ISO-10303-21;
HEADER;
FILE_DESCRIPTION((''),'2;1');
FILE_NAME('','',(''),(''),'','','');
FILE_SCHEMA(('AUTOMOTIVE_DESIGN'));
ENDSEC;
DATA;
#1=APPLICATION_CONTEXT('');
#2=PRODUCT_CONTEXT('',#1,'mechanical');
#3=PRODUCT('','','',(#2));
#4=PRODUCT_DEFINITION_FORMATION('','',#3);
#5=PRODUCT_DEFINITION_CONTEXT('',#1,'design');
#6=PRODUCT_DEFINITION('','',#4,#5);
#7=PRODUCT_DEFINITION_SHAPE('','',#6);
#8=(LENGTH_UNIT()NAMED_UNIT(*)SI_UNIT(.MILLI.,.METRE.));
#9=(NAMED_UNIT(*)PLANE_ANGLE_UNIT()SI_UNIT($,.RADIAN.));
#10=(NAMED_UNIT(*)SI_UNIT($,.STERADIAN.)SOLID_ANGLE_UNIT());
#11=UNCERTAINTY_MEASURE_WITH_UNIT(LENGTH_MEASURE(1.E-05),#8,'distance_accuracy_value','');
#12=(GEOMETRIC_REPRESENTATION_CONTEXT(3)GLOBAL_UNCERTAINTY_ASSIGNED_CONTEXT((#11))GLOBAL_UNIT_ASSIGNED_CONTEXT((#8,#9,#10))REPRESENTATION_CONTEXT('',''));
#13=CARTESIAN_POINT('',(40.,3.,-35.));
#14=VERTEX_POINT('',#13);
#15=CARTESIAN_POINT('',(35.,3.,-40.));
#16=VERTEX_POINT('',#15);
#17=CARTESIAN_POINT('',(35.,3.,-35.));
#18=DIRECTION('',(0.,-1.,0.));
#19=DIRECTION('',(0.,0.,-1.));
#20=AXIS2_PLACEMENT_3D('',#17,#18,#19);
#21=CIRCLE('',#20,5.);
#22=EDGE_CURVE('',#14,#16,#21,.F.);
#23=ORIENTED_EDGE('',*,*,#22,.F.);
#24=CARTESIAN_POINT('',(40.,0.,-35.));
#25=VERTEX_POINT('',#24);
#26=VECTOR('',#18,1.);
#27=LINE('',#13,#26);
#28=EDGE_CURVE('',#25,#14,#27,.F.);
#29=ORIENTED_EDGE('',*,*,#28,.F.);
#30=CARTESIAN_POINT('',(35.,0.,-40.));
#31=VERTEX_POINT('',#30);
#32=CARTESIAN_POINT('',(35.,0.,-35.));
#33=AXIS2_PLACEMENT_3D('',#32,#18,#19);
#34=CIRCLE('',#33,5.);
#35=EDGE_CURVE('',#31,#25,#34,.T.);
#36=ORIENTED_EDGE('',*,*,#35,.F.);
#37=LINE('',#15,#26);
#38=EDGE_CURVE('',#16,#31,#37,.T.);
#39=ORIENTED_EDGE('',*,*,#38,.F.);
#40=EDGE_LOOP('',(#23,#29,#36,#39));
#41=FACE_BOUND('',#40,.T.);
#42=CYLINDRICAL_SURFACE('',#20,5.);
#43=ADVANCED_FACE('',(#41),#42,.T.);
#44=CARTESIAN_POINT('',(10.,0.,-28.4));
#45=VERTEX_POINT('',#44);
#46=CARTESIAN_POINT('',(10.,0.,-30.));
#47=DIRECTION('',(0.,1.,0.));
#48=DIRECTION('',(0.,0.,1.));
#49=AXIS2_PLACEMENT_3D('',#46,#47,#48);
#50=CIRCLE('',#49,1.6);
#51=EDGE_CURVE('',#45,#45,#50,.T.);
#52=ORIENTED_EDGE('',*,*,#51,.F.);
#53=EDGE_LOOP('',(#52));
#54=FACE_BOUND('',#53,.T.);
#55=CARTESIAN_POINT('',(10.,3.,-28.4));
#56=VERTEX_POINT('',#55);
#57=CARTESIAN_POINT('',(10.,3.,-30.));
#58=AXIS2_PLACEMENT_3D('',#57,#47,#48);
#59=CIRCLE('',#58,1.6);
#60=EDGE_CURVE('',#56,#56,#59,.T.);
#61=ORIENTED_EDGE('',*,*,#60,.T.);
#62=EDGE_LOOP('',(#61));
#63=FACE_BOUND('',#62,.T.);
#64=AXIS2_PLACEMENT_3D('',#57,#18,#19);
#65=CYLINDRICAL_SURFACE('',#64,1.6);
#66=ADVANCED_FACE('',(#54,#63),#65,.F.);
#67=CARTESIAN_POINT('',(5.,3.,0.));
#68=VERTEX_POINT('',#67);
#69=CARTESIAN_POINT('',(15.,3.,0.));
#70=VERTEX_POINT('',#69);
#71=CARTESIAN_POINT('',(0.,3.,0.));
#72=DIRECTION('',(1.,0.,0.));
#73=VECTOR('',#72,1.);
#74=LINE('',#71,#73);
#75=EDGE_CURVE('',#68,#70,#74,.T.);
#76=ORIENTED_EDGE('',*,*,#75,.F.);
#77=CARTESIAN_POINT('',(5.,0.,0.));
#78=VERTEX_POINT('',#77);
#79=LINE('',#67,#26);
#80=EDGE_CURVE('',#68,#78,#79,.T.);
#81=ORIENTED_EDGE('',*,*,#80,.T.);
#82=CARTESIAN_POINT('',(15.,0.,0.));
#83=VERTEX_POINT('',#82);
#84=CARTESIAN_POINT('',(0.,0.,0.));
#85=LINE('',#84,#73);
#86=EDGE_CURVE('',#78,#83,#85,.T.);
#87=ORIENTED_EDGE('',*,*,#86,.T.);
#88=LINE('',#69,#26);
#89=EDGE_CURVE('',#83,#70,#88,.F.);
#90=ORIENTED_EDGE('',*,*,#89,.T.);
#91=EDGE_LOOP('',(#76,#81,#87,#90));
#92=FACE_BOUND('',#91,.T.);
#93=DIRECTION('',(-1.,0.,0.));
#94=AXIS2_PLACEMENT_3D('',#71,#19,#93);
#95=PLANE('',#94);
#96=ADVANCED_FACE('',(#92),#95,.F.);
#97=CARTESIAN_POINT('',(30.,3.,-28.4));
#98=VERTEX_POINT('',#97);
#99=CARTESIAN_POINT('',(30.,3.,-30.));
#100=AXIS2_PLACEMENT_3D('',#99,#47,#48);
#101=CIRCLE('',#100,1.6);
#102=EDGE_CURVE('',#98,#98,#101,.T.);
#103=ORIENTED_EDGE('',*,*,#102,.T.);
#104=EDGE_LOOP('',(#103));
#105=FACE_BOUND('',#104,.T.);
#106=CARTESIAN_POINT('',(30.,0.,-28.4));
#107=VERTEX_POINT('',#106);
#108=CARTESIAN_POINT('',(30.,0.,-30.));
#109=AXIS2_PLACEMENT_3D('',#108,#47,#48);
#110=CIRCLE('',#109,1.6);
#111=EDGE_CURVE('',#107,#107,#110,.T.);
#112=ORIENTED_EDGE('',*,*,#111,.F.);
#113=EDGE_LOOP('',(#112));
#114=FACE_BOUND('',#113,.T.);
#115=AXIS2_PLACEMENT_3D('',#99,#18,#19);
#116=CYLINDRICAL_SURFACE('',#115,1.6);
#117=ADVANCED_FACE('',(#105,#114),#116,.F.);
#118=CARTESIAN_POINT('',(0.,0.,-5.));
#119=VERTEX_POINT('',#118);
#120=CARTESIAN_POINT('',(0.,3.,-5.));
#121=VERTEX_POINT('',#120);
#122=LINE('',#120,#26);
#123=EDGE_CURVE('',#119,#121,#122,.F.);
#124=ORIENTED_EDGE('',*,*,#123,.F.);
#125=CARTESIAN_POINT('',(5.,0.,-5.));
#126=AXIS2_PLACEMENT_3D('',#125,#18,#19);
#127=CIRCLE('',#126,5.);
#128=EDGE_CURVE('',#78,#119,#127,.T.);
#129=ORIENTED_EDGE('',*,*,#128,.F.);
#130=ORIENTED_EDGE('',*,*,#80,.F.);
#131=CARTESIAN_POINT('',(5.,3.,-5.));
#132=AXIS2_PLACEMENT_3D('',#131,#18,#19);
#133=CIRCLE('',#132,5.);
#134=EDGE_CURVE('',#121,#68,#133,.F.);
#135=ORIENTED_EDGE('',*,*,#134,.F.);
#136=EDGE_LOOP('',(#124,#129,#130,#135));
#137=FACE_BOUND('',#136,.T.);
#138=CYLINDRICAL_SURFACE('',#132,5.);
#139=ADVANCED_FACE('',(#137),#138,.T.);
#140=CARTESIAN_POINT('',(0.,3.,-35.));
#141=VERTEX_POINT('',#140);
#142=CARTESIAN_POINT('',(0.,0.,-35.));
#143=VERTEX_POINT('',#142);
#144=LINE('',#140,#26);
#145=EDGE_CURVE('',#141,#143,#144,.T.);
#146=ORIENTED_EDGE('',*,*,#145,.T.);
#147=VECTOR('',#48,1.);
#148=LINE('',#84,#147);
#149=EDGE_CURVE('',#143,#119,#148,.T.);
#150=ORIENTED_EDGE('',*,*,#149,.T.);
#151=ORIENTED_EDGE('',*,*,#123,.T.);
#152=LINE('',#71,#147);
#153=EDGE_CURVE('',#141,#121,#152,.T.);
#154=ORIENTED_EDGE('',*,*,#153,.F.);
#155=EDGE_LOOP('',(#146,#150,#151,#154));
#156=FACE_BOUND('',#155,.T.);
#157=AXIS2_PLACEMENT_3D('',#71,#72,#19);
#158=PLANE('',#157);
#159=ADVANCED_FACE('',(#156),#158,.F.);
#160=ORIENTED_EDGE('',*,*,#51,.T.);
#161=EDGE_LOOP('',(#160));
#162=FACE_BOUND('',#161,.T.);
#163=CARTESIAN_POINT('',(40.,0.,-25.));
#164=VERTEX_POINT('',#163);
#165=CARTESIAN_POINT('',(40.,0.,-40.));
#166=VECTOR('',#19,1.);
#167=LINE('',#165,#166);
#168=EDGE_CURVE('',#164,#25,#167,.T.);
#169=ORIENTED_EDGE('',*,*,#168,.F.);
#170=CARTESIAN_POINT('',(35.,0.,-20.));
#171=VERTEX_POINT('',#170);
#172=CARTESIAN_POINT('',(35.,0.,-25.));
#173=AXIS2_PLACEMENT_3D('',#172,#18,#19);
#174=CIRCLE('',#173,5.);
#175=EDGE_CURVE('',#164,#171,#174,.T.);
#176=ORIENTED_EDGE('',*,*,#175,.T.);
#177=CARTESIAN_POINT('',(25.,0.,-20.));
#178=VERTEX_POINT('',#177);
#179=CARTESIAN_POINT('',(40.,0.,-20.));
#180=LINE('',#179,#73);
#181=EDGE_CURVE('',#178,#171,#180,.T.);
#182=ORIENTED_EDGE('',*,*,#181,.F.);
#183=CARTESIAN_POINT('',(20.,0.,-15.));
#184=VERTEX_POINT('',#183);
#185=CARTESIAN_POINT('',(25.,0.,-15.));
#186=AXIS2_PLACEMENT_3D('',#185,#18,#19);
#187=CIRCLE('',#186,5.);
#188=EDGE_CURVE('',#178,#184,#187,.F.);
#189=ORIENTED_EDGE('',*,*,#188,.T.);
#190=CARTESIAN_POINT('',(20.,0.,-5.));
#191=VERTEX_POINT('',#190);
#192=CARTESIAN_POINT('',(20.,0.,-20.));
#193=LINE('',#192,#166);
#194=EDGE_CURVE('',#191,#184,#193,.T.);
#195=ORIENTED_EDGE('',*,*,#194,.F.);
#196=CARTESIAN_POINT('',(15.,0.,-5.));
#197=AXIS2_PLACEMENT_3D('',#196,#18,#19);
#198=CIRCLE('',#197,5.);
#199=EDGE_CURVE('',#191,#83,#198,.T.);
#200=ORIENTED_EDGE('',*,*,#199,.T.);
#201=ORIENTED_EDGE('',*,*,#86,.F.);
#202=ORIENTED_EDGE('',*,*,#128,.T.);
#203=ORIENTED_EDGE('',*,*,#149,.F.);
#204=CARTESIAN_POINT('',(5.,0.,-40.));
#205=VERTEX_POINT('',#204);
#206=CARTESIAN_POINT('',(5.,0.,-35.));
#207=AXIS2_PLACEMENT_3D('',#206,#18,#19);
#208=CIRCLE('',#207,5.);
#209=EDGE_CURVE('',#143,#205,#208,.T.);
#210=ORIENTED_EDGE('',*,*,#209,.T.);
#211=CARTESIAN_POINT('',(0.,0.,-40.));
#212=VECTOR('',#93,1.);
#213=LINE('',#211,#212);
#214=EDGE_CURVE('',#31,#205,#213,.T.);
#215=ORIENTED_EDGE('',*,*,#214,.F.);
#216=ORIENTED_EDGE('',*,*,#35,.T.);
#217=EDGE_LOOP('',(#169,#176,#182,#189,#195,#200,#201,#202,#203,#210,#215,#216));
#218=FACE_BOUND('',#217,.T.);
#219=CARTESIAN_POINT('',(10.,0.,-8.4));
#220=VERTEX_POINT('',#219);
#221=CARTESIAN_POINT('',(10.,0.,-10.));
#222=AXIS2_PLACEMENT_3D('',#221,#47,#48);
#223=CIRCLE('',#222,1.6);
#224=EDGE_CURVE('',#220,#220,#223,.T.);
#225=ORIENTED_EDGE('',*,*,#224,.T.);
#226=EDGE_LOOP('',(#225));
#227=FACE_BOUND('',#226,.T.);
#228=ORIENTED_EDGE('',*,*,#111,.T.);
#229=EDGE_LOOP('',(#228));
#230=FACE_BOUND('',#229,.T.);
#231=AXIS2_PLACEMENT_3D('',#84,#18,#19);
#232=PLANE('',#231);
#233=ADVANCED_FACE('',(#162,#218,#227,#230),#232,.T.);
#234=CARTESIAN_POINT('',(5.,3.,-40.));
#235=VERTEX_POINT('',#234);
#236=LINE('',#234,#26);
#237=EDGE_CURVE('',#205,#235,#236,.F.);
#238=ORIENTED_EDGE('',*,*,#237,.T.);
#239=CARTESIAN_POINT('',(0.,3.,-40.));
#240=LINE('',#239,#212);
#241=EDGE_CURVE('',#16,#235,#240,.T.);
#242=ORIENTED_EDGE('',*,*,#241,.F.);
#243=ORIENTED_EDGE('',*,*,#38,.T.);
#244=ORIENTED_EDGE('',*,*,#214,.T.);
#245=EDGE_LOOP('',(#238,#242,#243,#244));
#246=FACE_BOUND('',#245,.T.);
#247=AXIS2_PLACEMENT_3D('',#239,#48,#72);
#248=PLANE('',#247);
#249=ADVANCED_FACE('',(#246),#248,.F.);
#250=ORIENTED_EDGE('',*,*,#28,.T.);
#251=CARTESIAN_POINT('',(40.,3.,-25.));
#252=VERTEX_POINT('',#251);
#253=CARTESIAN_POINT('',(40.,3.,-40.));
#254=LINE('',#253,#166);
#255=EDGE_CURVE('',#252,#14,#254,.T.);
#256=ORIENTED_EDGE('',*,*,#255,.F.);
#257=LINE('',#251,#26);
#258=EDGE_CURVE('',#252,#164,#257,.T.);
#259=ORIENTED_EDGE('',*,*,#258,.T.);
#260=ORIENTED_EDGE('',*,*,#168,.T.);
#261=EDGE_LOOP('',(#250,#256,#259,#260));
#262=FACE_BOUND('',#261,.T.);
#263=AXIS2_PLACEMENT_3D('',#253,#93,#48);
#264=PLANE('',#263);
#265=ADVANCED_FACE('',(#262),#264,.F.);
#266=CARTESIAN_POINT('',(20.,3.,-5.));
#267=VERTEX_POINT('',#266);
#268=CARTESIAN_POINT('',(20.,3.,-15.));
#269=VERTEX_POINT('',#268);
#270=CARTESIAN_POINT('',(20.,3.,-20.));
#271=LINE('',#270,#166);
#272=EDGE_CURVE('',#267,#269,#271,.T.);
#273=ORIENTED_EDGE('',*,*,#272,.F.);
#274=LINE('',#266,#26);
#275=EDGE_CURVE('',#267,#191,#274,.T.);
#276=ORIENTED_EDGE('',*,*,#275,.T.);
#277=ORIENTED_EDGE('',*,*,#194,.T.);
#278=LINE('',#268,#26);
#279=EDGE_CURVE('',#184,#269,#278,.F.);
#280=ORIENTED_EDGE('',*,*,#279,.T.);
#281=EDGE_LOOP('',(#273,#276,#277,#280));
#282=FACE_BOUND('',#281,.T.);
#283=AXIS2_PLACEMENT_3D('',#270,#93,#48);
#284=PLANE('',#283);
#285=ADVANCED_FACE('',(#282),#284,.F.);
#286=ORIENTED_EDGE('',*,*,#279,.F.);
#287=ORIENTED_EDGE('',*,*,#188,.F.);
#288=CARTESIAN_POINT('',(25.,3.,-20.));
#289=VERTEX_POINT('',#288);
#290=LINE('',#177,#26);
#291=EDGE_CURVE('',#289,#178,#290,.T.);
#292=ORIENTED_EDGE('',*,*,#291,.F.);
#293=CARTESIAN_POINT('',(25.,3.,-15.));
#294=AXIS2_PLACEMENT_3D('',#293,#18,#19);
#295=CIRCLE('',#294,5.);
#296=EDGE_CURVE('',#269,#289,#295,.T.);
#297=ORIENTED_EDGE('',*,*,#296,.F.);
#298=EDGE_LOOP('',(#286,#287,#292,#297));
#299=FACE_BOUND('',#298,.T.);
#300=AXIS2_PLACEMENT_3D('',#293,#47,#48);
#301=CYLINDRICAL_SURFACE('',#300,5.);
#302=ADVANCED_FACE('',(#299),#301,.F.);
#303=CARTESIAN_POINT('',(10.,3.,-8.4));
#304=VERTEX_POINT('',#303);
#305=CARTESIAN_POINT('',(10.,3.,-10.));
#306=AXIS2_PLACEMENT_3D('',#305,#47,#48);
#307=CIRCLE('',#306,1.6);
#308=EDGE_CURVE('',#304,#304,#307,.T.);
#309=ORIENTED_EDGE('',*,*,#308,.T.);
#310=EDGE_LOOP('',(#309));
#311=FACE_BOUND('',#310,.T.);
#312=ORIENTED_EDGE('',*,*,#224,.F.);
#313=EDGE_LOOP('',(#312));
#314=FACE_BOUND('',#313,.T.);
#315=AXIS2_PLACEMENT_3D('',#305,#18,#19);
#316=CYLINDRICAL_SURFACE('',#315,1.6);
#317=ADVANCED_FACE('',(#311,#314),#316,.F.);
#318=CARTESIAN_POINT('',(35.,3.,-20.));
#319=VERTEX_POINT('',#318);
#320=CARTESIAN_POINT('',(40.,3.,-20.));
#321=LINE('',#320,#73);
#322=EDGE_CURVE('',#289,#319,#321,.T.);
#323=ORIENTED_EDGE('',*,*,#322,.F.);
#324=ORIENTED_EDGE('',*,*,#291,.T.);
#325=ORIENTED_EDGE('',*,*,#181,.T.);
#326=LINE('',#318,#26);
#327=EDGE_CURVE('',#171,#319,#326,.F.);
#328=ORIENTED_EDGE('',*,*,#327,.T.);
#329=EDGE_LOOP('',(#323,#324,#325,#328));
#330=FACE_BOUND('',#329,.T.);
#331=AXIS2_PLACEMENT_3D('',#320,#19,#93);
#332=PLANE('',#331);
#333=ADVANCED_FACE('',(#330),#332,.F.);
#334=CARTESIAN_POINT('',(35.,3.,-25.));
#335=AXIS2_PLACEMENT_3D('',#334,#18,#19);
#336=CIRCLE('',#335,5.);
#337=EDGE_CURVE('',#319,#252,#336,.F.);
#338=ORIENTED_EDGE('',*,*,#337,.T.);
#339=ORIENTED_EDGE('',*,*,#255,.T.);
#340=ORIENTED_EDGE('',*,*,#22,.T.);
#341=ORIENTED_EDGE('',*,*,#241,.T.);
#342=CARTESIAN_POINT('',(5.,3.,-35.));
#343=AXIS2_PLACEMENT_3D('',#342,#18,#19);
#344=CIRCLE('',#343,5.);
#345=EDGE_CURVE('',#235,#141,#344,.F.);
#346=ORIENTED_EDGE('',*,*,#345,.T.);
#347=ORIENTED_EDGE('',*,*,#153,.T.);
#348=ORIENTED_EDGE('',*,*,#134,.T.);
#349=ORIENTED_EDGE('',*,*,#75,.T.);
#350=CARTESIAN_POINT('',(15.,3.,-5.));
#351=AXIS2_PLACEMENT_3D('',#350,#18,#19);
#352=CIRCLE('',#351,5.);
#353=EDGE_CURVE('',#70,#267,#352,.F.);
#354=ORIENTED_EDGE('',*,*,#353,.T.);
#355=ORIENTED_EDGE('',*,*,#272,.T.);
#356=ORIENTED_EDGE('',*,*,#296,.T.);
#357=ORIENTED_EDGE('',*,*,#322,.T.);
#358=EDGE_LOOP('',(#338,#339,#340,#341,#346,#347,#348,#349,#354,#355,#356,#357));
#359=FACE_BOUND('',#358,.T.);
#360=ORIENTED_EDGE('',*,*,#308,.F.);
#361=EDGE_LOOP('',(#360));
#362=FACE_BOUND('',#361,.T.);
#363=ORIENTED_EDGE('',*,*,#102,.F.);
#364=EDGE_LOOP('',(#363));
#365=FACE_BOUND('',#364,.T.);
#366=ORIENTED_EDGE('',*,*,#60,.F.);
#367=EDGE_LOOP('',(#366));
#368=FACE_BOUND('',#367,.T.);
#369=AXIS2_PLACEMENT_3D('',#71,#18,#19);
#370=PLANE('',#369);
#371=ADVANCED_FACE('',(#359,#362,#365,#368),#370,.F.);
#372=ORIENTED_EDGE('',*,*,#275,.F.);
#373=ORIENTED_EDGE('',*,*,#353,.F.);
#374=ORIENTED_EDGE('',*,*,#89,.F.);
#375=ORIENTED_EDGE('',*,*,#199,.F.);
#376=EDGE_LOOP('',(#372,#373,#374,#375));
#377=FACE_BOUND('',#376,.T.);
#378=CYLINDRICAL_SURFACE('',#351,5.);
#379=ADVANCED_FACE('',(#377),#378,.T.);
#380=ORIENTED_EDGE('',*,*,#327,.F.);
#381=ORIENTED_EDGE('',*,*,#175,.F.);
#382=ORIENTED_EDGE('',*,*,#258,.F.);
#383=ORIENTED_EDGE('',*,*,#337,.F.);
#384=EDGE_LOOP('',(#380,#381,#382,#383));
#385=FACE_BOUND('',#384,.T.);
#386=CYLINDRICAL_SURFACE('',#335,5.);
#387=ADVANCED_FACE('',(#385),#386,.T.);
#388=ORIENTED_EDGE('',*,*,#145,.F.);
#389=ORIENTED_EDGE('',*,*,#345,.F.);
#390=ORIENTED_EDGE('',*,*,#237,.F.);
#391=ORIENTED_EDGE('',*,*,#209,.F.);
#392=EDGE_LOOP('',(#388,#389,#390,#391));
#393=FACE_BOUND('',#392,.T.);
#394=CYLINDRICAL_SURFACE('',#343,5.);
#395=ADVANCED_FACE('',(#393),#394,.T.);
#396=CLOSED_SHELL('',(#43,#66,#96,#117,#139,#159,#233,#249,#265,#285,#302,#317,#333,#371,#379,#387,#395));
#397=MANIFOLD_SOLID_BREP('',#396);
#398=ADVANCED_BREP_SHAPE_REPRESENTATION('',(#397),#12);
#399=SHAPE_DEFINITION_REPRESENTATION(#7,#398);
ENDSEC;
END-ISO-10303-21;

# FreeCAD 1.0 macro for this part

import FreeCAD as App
import Part
import Sketcher
from FreeCAD import Vector


def edges_at(feature, points):
    """Names of the edges that pass closest to the given points."""
    edges = feature.Shape.Edges
    near = lambda p: min(range(len(edges)), key=lambda i: edges[i].distToShape(Part.Vertex(*p))[0])
    return sorted({f"Edge{near(p) + 1}" for p in points})


def add_polygon(sketch, points):
    """Adds a closed chain of lines whose ends are joined by coincident constraints."""
    first, n = sketch.GeometryCount, len(points)
    for a, b in zip(points, points[1:] + points[:1]):
        sketch.addGeometry(Part.LineSegment(App.Vector(*a, 0), App.Vector(*b, 0)), False)
    for i in range(n):
        sketch.addConstraint(Sketcher.Constraint("Coincident", first + i, 2, first + (i + 1) % n, 1))

doc = App.newDocument("Part")
body = doc.addObject("PartDesign::Body", "Body")

sketch1 = doc.addObject("Sketcher::SketchObject", "Sketch")
body.addObject(sketch1)
sketch1.AttachmentSupport = (doc.XZ_Plane, [""])
sketch1.MapMode = "FlatFace"
add_polygon(sketch1, [(0, -40), (0, 0), (20, 0), (20, -20), (40, -20), (40, -40)])
sketch1.addGeometry(Part.Circle(Vector(10, -10, 0), Vector(0, 0, 1), 1.6), False)
sketch1.addGeometry(Part.Circle(Vector(30, -30, 0), Vector(0, 0, 1), 1.6), False)
sketch1.addGeometry(Part.Circle(Vector(10, -30, 0), Vector(0, 0, 1), 1.6), False)
sketch1.addConstraint([
    Sketcher.Constraint("Vertical", 0),
    Sketcher.Constraint("Horizontal", 1),
    Sketcher.Constraint("Vertical", 2),
    Sketcher.Constraint("Horizontal", 3),
    Sketcher.Constraint("Vertical", 4),
    Sketcher.Constraint("Horizontal", 5),
    Sketcher.Constraint("Coincident", 0, 2, -1, 1),
    Sketcher.Constraint("Equal", 6, 7),
    Sketcher.Constraint("Equal", 7, 8),
    Sketcher.Constraint("Horizontal", 7, 3, 8, 3),
    Sketcher.Constraint("Vertical", 6, 3, 8, 3),
    Sketcher.Constraint("Equal", 1, 3),
    Sketcher.Constraint("Equal", 5, 0),
    Sketcher.Constraint("Equal", 3, 2),
    Sketcher.Constraint("Diameter", 6, 3.2),
    Sketcher.Constraint("DistanceX", 1, 1, 1, 2, 20.0),
    Sketcher.Constraint("DistanceX", -1, 1, 6, 3, 10.0),
    Sketcher.Constraint("DistanceY", 6, 3, -1, 1, 10.0),
    Sketcher.Constraint("DistanceX", -1, 1, 7, 3, 30.0),
    Sketcher.Constraint("DistanceY", 7, 3, -1, 1, 30.0),
])
pad1 = doc.addObject("PartDesign::Pad", "Pad")
body.addObject(pad1)
pad1.Profile = sketch1
pad1.Length = 3
pad1.Reversed = True
doc.recompute()

fillet = doc.addObject("PartDesign::Fillet", "Fillet")
body.addObject(fillet)
fillet.Base = (pad1, edges_at(pad1, [
    (0, 1.5, 0),
    (0, 1.5, -40),
    (40, 1.5, -40),
    (40, 1.5, -20),
    (20, 1.5, -20),
    (20, 1.5, 0),
]))
fillet.Radius = 5

doc.recompute()
